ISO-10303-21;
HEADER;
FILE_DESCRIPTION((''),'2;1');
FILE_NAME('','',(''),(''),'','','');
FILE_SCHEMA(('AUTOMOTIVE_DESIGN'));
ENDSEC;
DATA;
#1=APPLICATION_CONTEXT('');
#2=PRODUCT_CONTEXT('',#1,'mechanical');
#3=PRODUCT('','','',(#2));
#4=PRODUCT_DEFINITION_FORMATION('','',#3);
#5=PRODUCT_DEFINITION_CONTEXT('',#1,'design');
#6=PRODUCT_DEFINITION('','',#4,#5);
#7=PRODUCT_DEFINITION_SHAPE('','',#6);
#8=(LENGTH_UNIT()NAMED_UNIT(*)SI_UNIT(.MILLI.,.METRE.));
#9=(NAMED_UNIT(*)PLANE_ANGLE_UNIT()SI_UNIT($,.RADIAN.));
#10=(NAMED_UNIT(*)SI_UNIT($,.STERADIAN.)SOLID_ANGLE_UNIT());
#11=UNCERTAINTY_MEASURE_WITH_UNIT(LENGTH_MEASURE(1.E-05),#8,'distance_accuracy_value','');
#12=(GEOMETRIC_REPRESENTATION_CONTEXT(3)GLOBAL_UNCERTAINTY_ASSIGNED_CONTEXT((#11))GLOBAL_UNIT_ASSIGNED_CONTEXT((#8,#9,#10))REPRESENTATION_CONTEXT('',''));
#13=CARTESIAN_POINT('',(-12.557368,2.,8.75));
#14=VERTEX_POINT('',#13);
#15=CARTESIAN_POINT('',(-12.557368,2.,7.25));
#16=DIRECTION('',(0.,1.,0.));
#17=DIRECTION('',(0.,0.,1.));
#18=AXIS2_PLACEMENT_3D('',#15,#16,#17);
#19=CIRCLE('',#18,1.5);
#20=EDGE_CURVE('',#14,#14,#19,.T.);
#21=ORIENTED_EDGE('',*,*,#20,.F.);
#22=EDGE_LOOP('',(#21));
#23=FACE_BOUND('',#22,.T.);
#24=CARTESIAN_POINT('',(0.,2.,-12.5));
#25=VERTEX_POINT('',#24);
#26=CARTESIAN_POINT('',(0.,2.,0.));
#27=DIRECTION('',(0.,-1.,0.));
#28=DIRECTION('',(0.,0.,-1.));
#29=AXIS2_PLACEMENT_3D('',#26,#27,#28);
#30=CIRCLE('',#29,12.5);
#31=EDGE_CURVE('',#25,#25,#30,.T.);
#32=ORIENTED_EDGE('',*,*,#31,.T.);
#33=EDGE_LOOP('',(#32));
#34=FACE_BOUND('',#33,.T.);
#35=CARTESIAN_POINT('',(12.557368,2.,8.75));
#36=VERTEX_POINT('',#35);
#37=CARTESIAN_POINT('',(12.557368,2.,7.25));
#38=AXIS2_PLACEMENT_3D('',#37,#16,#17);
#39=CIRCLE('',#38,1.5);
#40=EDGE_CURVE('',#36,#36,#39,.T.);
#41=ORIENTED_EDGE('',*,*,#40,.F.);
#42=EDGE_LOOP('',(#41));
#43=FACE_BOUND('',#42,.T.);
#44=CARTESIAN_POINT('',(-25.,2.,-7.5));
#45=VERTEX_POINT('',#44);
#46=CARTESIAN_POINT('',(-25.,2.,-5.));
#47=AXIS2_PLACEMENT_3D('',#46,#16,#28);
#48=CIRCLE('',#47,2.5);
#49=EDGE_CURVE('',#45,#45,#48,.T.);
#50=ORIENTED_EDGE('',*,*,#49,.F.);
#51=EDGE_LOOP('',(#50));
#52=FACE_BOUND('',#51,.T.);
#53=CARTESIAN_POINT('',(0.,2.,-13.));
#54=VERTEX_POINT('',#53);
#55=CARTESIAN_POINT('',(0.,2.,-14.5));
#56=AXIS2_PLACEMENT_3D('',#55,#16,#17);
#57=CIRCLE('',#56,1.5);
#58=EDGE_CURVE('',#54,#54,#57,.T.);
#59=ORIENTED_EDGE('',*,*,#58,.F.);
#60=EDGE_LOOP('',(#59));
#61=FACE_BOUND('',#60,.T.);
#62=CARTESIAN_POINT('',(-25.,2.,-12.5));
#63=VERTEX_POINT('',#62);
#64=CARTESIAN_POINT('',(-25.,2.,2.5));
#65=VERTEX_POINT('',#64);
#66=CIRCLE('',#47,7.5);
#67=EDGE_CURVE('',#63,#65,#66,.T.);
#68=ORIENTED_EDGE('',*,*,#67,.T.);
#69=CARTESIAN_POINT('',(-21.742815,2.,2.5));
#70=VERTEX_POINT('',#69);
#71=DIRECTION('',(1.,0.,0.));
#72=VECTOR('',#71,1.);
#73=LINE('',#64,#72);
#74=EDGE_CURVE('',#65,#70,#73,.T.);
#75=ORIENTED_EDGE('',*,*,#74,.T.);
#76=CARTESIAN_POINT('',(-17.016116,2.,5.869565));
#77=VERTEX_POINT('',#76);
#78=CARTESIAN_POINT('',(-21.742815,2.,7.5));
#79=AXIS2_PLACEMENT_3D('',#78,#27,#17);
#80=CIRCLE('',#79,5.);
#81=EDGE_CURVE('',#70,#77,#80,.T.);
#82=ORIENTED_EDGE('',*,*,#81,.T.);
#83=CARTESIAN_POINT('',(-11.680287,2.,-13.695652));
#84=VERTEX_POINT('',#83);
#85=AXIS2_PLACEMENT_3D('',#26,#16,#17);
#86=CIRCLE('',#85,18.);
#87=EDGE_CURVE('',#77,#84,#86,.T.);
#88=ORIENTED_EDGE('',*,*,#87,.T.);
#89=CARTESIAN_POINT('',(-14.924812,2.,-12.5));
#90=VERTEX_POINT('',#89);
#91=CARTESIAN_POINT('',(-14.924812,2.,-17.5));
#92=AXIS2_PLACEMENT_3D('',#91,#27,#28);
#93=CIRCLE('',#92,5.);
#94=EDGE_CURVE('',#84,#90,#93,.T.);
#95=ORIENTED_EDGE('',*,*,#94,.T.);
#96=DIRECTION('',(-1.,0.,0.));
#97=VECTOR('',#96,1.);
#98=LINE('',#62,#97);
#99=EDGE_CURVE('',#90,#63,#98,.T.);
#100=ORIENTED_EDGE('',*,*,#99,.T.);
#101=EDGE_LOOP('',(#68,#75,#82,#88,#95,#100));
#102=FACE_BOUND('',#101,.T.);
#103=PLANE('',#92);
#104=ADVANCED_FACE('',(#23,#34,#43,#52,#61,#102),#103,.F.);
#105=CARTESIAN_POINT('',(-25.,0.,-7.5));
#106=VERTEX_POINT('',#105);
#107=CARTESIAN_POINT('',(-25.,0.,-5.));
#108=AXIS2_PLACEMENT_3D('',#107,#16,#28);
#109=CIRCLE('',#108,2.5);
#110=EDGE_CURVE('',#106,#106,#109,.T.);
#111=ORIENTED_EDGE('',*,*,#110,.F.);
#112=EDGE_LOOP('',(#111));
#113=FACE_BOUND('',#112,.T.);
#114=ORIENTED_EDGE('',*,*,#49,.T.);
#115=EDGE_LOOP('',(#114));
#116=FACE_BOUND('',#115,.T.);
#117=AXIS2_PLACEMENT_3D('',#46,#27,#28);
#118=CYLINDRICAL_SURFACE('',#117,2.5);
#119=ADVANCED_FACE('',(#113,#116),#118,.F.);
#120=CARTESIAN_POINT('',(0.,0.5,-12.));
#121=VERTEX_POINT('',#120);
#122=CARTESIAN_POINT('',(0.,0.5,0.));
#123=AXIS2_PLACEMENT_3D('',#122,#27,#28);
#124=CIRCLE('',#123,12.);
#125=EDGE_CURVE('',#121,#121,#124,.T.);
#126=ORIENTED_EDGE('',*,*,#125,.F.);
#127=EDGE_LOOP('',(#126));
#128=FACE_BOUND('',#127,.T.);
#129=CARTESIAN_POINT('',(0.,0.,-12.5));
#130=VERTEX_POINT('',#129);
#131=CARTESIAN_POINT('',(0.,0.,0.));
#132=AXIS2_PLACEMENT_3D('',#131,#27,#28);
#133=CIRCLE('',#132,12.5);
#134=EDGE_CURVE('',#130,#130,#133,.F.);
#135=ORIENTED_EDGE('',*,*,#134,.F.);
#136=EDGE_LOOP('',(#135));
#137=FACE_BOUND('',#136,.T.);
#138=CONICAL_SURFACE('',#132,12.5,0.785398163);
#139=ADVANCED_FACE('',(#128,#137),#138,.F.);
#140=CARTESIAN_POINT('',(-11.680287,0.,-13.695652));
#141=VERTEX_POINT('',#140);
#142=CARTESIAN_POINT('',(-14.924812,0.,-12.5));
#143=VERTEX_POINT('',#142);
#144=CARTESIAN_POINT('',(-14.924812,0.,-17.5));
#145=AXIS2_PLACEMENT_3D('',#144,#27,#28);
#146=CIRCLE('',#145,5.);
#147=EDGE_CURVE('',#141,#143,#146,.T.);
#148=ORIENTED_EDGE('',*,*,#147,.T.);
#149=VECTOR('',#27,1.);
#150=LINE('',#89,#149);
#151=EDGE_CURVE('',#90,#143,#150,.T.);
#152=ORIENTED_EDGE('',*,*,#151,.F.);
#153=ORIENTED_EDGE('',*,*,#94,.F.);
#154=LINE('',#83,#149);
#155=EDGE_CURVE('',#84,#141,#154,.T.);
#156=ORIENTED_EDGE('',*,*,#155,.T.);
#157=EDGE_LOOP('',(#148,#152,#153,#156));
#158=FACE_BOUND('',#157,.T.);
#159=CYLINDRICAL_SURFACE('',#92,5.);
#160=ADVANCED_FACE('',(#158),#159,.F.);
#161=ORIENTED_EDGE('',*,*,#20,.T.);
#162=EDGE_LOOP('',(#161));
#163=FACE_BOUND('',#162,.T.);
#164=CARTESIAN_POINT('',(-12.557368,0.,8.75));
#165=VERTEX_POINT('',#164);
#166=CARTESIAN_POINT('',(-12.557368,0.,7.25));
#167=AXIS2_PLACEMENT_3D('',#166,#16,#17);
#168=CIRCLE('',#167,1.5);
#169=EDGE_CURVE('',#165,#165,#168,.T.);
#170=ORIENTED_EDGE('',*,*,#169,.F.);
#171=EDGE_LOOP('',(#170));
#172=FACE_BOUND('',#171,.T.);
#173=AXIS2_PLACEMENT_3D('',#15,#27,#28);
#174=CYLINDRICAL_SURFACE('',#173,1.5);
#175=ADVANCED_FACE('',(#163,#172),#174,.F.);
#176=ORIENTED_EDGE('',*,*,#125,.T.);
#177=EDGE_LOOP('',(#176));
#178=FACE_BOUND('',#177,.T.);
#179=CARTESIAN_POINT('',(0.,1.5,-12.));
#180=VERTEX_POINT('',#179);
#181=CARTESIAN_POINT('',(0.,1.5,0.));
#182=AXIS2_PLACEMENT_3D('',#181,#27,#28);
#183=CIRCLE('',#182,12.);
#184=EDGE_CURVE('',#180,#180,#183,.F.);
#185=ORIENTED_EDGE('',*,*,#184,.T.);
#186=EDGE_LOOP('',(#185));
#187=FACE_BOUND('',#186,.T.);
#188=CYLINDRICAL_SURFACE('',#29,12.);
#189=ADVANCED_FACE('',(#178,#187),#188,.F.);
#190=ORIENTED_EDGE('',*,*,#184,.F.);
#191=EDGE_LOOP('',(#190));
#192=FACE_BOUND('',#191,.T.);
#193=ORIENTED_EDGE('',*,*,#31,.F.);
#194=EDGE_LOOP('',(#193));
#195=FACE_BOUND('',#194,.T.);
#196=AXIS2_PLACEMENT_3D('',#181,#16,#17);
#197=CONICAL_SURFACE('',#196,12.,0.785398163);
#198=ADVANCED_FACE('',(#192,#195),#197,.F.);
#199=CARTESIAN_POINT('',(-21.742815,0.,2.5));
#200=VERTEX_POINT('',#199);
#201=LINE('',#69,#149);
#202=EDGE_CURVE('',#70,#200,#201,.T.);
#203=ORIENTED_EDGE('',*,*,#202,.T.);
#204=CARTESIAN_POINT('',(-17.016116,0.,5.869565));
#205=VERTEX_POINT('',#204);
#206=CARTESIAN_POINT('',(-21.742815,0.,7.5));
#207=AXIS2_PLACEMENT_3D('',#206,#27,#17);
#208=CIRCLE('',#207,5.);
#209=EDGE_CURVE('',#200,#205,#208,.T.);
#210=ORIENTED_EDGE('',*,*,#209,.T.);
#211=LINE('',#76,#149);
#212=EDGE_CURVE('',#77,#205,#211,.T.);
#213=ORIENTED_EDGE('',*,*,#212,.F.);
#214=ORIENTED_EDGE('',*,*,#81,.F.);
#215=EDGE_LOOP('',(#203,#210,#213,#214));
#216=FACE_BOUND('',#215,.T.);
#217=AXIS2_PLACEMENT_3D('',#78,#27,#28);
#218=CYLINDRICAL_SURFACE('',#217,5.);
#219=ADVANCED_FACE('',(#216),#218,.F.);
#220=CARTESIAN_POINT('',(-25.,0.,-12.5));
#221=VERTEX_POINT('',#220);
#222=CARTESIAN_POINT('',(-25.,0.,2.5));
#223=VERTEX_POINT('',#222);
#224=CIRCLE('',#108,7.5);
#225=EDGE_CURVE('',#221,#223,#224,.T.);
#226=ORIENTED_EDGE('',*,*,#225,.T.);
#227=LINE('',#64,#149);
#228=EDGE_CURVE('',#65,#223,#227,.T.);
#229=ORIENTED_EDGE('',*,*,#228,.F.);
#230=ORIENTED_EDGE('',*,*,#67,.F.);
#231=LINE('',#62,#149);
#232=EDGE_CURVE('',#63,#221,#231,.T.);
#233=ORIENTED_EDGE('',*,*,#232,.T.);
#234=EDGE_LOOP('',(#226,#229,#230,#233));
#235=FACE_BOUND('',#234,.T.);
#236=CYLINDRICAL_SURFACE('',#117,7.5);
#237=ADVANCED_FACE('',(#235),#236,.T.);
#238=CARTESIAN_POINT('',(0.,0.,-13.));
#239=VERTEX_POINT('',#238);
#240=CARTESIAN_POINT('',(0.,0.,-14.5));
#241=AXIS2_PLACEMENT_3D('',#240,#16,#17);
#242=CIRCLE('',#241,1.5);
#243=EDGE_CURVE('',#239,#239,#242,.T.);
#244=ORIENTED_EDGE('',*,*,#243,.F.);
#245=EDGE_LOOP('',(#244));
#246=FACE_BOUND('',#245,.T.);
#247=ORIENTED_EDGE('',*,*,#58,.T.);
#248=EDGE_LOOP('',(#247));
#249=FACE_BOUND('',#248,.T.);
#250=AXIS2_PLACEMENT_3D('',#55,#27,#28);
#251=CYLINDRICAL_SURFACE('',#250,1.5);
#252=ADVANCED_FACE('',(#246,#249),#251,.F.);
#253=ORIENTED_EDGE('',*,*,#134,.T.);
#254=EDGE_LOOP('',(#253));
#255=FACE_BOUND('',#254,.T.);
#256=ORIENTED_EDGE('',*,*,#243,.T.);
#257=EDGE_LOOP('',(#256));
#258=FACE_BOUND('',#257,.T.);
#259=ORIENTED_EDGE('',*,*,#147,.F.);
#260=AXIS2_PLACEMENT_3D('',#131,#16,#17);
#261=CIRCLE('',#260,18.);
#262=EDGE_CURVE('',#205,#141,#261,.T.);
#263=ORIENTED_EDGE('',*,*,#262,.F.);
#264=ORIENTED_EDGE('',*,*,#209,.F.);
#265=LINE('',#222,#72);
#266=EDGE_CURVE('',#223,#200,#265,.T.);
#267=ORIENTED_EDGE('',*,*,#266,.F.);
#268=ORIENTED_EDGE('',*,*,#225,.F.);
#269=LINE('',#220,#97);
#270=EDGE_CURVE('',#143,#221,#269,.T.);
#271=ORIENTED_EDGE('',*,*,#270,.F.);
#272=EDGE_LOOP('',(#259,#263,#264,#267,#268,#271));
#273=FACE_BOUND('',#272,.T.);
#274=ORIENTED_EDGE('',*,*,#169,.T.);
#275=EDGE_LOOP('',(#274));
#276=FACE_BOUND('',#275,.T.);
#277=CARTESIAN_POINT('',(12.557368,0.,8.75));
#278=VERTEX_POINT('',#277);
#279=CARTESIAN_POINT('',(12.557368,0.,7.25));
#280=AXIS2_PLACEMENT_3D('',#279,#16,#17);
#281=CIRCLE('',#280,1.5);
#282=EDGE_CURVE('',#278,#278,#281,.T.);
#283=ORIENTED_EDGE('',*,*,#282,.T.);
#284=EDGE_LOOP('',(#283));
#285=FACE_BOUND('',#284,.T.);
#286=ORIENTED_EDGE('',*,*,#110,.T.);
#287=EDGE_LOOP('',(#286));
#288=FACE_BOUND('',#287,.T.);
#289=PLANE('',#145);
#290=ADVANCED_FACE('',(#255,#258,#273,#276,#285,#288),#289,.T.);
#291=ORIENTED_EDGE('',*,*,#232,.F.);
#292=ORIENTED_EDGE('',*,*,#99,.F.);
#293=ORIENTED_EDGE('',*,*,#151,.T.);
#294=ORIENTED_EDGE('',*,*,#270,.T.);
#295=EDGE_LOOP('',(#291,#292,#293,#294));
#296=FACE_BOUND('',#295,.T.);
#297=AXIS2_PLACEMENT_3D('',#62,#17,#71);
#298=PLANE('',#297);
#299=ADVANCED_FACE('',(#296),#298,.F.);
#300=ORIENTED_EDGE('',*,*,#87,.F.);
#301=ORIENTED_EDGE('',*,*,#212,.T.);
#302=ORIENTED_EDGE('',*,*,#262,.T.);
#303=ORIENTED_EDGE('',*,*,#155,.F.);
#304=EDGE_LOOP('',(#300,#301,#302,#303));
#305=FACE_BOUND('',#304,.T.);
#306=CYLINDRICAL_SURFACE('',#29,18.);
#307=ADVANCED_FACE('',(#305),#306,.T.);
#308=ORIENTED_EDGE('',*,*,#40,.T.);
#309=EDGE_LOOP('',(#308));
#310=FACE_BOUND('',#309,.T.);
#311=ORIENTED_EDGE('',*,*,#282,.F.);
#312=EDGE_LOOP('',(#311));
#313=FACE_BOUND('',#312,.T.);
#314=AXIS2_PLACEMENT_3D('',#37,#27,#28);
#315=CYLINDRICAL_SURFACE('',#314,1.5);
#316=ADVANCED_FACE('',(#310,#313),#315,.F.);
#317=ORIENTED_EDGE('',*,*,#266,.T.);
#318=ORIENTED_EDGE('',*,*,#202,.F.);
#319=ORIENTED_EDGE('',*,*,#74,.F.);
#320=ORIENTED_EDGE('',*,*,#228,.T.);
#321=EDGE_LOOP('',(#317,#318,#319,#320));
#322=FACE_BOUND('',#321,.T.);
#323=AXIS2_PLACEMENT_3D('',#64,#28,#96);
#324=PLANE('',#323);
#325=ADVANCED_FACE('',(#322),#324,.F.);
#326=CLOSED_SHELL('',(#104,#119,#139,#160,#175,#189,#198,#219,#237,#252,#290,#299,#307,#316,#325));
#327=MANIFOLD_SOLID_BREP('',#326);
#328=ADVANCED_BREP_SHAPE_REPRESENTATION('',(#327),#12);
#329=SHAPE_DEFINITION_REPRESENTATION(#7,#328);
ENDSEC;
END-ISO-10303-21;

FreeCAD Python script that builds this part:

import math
import FreeCAD as App
import Part
import Sketcher


def edges_at(feature, points):
    """Names of the edges that pass closest to the given points."""
    edges = feature.Shape.Edges
    near = lambda p: min(range(len(edges)), key=lambda i: edges[i].distToShape(Part.Vertex(*p))[0])
    return sorted({f"Edge{near(p) + 1}" for p in points})

doc = App.newDocument("Part")
body = doc.addObject("PartDesign::Body", "Body")

sketch1 = body.newObject("Sketcher::SketchObject", "Sketch")
sketch1.AttachmentSupport = (doc.getObject("XZ_Plane"), [""])
sketch1.MapMode = "FlatFace"
sketch1.addGeometry([
    Part.LineSegment(App.Vector(-25, 2.5, 0), App.Vector(-21.742815, 2.5, 0)),
    Part.ArcOfCircle(Part.Circle(App.Vector(-21.742815, 7.5, 0), App.Vector(0, 0, 1), 5), math.radians(-90), math.radians(-19.031441)),
    Part.ArcOfCircle(Part.Circle(App.Vector(0, 0, 0), App.Vector(0, 0, 1), 18), math.radians(-130.459083), math.radians(160.968559)),
    Part.ArcOfCircle(Part.Circle(App.Vector(-14.924812, -17.5, 0), App.Vector(0, 0, 1), 5), math.radians(49.540917), math.radians(90)),
    Part.LineSegment(App.Vector(-14.924812, -12.5, 0), App.Vector(-25, -12.5, 0)),
    Part.ArcOfCircle(Part.Circle(App.Vector(-25, -5, 0), App.Vector(0, 0, 1), 7.5), math.radians(90), math.radians(270)),
    Part.Circle(App.Vector(-12.557368, 7.25, 0), App.Vector(0, 0, 1), 1.5),
    Part.Circle(App.Vector(12.557368, 7.25, 0), App.Vector(0, 0, 1), 1.5),
    Part.Circle(App.Vector(0, 0, 0), App.Vector(0, 0, 1), 12),
    Part.Circle(App.Vector(-25, -5, 0), App.Vector(0, 0, 1), 2.5),
    Part.Circle(App.Vector(0, -14.5, 0), App.Vector(0, 0, 1), 1.5),
], False)
sketch1.addConstraint([
    Sketcher.Constraint("Tangent", 0, 2, 1, 1),
    Sketcher.Constraint("Tangent", 1, 2, 2, 2),
    Sketcher.Constraint("Tangent", 2, 1, 3, 1),
    Sketcher.Constraint("Tangent", 3, 2, 4, 1),
    Sketcher.Constraint("Tangent", 4, 2, 5, 2),
    Sketcher.Constraint("Tangent", 5, 1, 0, 1),
    Sketcher.Constraint("Horizontal", 0),
    Sketcher.Constraint("Horizontal", 4),
    Sketcher.Constraint("Coincident", 2, 3, -1, 1),
    Sketcher.Constraint("Coincident", 8, 3, -1, 1),
    Sketcher.Constraint("Coincident", 9, 3, 5, 3),
    Sketcher.Constraint("Equal", 1, 3),
    Sketcher.Constraint("Equal", 6, 7),
    Sketcher.Constraint("Equal", 7, 10),
    Sketcher.Constraint("Symmetric", 6, 3, 7, 3, -2),
    Sketcher.Constraint("PointOnObject", 10, 3, -2),
    Sketcher.Constraint("Diameter", 6, 3.0),
    Sketcher.Constraint("Diameter", 8, 24.0),
    Sketcher.Constraint("Diameter", 9, 5.0),
    Sketcher.Constraint("Radius", 1, 5.0),
    Sketcher.Constraint("Radius", 2, 18.0),
    Sketcher.Constraint("Radius", 5, 7.5),
    Sketcher.Constraint("DistanceX", 5, 3, -1, 1, 25.0),
    Sketcher.Constraint("DistanceY", 5, 3, -1, 1, 5.0),
    Sketcher.Constraint("DistanceY", 3, 3, 10, 3, 3.0),
    Sketcher.Constraint("DistanceY", -1, 1, 6, 3, 7.25),
    Sketcher.Constraint("DistanceX", 6, 3, -1, 1, 12.557368),
])
pad1 = body.newObject("PartDesign::Pad", "Pad")
pad1.Profile = sketch1
pad1.Length = 2
pad1.Reversed = True
doc.recompute()

chamfer = body.newObject("PartDesign::Chamfer", "Chamfer")
chamfer.Base = (pad1, edges_at(pad1, [(-12, 0, 0), (-12, 2, 0)]))
chamfer.Size = 0.5

doc.recompute()
